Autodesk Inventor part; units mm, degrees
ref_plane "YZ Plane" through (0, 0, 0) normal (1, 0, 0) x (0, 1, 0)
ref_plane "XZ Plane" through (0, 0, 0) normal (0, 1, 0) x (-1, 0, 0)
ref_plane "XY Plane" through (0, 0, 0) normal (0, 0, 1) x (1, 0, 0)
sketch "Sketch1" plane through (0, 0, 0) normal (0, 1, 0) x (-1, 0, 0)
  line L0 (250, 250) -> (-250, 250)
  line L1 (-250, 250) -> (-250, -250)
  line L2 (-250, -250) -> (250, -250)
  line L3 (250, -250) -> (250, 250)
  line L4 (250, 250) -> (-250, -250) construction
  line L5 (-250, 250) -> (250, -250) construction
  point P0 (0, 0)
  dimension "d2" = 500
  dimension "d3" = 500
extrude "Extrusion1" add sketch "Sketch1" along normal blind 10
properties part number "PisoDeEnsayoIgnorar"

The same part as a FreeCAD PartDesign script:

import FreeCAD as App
import Part
import Sketcher

V = App.Vector
Q = App.Units.Quantity

doc = App.newDocument("Part")
body = doc.addObject("PartDesign::Body", "Body")

# Sketch on XZ plane
sketch1 = body.newObject("Sketcher::SketchObject", "Sketch")
sketch1.AttachmentSupport = (doc.getObject("XZ_Plane"), [""])
sketch1.MapMode = "FlatFace"
sketch1.addGeometry(Part.LineSegment(V(-250, -250, 0), V(-250, 250, 0)), False)
sketch1.addGeometry(Part.LineSegment(V(-250, 250, 0), V(250, 250, 0)), False)
sketch1.addGeometry(Part.LineSegment(V(250, 250, 0), V(250, -250, 0)), False)
sketch1.addGeometry(Part.LineSegment(V(250, -250, 0), V(-250, -250, 0)), False)
sketch1.addConstraint(Sketcher.Constraint("Coincident", 0, 2, 1, 1))
sketch1.addConstraint(Sketcher.Constraint("Coincident", 1, 2, 2, 1))
sketch1.addConstraint(Sketcher.Constraint("Coincident", 2, 2, 3, 1))
sketch1.addConstraint(Sketcher.Constraint("Coincident", 3, 2, 0, 1))
sketch1.addConstraint(Sketcher.Constraint("Vertical", 0))
sketch1.addConstraint(Sketcher.Constraint("Horizontal", 1))
sketch1.addConstraint(Sketcher.Constraint("Vertical", 2))
sketch1.addConstraint(Sketcher.Constraint("Horizontal", 3))
sketch1.addConstraint(Sketcher.Constraint("Symmetric", 0, 2, 2, 2, -1, 1))
sketch1.addConstraint(Sketcher.Constraint("Equal", 3, 0))
sketch1.addConstraint(Sketcher.Constraint("DistanceX", 1, 1, 1, 2, Q("500 mm")))
pad1 = body.newObject("PartDesign::Pad", "Pad")
pad1.Profile = sketch1
pad1.Length = 10
pad1.Reversed = True

doc.recompute()
